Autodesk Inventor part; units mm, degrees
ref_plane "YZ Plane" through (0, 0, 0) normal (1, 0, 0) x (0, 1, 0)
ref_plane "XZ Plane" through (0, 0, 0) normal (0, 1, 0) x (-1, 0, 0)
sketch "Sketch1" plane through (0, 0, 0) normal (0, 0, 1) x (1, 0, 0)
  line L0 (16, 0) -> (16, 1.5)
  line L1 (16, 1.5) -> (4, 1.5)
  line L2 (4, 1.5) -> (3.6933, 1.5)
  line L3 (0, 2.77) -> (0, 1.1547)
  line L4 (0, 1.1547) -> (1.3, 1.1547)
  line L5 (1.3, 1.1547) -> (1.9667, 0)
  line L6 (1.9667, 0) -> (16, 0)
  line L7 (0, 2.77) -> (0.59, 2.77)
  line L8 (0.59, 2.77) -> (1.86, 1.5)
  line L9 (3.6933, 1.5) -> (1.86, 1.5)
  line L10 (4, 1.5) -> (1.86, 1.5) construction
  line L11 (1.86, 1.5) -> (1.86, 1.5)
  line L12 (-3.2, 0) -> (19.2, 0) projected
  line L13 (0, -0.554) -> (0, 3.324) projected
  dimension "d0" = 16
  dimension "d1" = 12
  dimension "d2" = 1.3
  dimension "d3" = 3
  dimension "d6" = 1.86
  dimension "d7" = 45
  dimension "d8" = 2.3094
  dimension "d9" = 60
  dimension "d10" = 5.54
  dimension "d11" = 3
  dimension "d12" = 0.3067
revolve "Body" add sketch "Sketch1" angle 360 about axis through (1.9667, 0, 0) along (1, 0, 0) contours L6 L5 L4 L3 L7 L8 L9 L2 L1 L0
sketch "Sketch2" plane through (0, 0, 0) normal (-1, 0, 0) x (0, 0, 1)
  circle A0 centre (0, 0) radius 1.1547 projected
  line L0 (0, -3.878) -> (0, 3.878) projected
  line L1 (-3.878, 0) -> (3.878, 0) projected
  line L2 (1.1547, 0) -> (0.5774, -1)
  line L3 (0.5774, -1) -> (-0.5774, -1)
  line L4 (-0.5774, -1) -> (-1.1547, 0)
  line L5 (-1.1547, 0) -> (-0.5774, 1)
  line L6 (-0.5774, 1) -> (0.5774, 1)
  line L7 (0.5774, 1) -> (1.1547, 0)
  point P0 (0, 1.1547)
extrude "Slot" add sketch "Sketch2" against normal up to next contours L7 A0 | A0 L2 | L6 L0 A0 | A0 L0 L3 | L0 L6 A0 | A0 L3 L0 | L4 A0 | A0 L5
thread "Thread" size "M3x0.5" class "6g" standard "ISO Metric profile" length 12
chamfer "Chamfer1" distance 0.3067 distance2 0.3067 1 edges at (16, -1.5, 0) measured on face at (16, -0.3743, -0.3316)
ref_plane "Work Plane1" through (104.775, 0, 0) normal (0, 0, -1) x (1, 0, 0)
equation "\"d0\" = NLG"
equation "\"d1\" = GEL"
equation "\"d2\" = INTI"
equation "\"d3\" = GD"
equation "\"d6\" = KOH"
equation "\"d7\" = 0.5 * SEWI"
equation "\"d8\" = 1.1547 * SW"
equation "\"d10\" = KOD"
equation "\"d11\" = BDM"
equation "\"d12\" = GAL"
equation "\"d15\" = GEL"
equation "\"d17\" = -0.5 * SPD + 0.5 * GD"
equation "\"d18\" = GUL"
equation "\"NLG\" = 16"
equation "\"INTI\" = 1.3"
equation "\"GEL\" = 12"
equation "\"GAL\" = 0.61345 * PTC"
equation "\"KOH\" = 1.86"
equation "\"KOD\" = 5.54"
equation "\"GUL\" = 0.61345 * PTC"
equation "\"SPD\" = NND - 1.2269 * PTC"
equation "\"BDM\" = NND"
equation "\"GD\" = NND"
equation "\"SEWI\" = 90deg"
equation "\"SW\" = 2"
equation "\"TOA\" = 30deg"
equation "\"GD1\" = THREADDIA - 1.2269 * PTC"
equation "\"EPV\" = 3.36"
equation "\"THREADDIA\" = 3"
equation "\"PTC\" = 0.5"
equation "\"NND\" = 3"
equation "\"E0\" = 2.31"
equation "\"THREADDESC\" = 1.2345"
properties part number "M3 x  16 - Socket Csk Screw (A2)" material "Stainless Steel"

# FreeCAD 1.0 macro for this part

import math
import FreeCAD as App
import Part
import Sketcher
from FreeCAD import Vector
Q = App.Units.Quantity


def edges_at(feature, points):
    """Names of the edges that pass closest to the given points."""
    edges = feature.Shape.Edges
    near = lambda p: min(range(len(edges)), key=lambda i: edges[i].distToShape(Part.Vertex(*p))[0])
    return sorted({f"Edge{near(p) + 1}" for p in points})


def add_polygon(sketch, points):
    """Adds a closed chain of lines whose ends are joined by coincident constraints."""
    first, n = sketch.GeometryCount, len(points)
    for a, b in zip(points, points[1:] + points[:1]):
        sketch.addGeometry(Part.LineSegment(App.Vector(*a, 0), App.Vector(*b, 0)), False)
    for i in range(n):
        sketch.addConstraint(Sketcher.Constraint("Coincident", first + i, 2, first + (i + 1) % n, 1))

doc = App.newDocument("Part")
body = doc.addObject("PartDesign::Body", "Body")

sketch1 = doc.addObject("Sketcher::SketchObject", "Sketch")
body.addObject(sketch1)
sketch1.AttachmentSupport = (doc.XY_Plane, [""])
sketch1.MapMode = "FlatFace"
add_polygon(sketch1, [(2, 0), (16, 0), (16, 1.5), (1.9, 1.5), (0.6, 2.8), (0, 2.8), (0, 1.2), (1.3, 1.2)])
sketch1.addConstraint([
    Sketcher.Constraint("Horizontal", 0),
    Sketcher.Constraint("Vertical", 1),
    Sketcher.Constraint("Horizontal", 2),
    Sketcher.Constraint("Horizontal", 4),
    Sketcher.Constraint("Vertical", 5),
    Sketcher.Constraint("Horizontal", 6),
    Sketcher.Constraint("PointOnObject", 0, 2, -1),
    Sketcher.Constraint("PointOnObject", 4, 2, -2),
    Sketcher.Constraint("DistanceX", 6, 1, 6, 2, 1.3),
    Sketcher.Constraint("DistanceX", -1, 1, 0, 2, 16.0),
    Sketcher.Constraint("DistanceX", -1, 1, 2, 2, 1.86),
    Sketcher.Constraint("Angle", 3, Q("135 deg")),
    Sketcher.Constraint("DistanceY", 1, 1, 1, 2, 1.5),
    Sketcher.Constraint("DistanceX", 4, 2, 4, 1, 0.59),
    Sketcher.Constraint("DistanceX", 0, 1, 0, 2, 14.0333),
    Sketcher.Constraint("DistanceY", 5, 2, 5, 1, 1.6153),
])
revolution = doc.addObject("PartDesign::Revolution", "Revolution")
body.addObject(revolution)
revolution.Profile = sketch1
revolution.ReferenceAxis = (sketch1, ["H_Axis"])
revolution.Angle = 360

sketch2 = doc.addObject("Sketcher::SketchObject", "Sketch001")
body.addObject(sketch2)
sketch2.AttachmentSupport = (doc.YZ_Plane, [""])
sketch2.MapMode = "FlatFace"
sketch2.addGeometry([
    Part.LineSegment(Vector(1, 0.6, 0), Vector(0, 1.2, 0)),
    Part.ArcOfCircle(Part.Circle(Vector(0, 0, 0), Vector(0, 0, 1), 1.2), math.radians(30), math.radians(90)),
    Part.ArcOfCircle(Part.Circle(Vector(0, 0, 0), Vector(0, 0, 1), 1.2), math.radians(90), math.radians(150)),
    Part.LineSegment(Vector(0, 1.2, 0), Vector(-1, 0.6, 0)),
    Part.ArcOfCircle(Part.Circle(Vector(0, 0, 0), Vector(0, 0, 1), 1.2), math.radians(-30), math.radians(30)),
    Part.LineSegment(Vector(1, 0.6, 0), Vector(1, -0.6, 0)),
    Part.LineSegment(Vector(-1, 0.6, 0), Vector(-1, -0.6, 0)),
    Part.ArcOfCircle(Part.Circle(Vector(0, 0, 0), Vector(0, 0, 1), 1.2), math.radians(150), math.radians(210)),
    Part.LineSegment(Vector(-1, -0.6, 0), Vector(0, -1.2, 0)),
    Part.ArcOfCircle(Part.Circle(Vector(0, 0, 0), Vector(0, 0, 1), 1.2), math.radians(-150), math.radians(-90)),
    Part.ArcOfCircle(Part.Circle(Vector(0, 0, 0), Vector(0, 0, 1), 1.2), math.radians(-90), math.radians(-30)),
    Part.LineSegment(Vector(0, -1.2, 0), Vector(1, -0.6, 0)),
], False)
sketch2.addConstraint([
    Sketcher.Constraint("Coincident", 0, 1, 1, 1),
    Sketcher.Constraint("Coincident", 1, 2, 0, 2),
    Sketcher.Constraint("Coincident", 2, 1, 3, 1),
    Sketcher.Constraint("Coincident", 3, 2, 2, 2),
    Sketcher.Constraint("Coincident", 4, 1, 5, 2),
    Sketcher.Constraint("Coincident", 5, 1, 4, 2),
    Sketcher.Constraint("Coincident", 6, 1, 7, 1),
    Sketcher.Constraint("Coincident", 7, 2, 6, 2),
    Sketcher.Constraint("Coincident", 8, 1, 9, 1),
    Sketcher.Constraint("Coincident", 9, 2, 8, 2),
    Sketcher.Constraint("Coincident", 10, 1, 11, 1),
    Sketcher.Constraint("Coincident", 11, 2, 10, 2),
    Sketcher.Constraint("Vertical", 5),
    Sketcher.Constraint("Vertical", 6),
    Sketcher.Constraint("Coincident", 1, 3, -1, 1),
    Sketcher.Constraint("Coincident", 2, 3, -1, 1),
    Sketcher.Constraint("Coincident", 4, 3, -1, 1),
    Sketcher.Constraint("Coincident", 7, 3, -1, 1),
    Sketcher.Constraint("Coincident", 9, 3, -1, 1),
    Sketcher.Constraint("Coincident", 10, 3, -1, 1),
    Sketcher.Constraint("Coincident", 2, 1, 1, 2),
    Sketcher.Constraint("Coincident", 5, 1, 0, 1),
    Sketcher.Constraint("Coincident", 6, 1, 3, 2),
    Sketcher.Constraint("Coincident", 8, 1, 7, 2),
    Sketcher.Constraint("Coincident", 10, 1, 9, 2),
    Sketcher.Constraint("PointOnObject", 1, 2, -2),
    Sketcher.Constraint("PointOnObject", 9, 2, -2),
    Sketcher.Constraint("Parallel", 0, 8),
    Sketcher.Constraint("Parallel", 3, 11),
    Sketcher.Constraint("DistanceX", -1, 1, 0, 1, 1.0),
    Sketcher.Constraint("Radius", 1, 1.1547),
])
pad1 = doc.addObject("PartDesign::Pad", "Pad")
body.addObject(pad1)
pad1.Profile = sketch2
pad1.Type = "UpToFirst"
doc.recompute()

chamfer = doc.addObject("PartDesign::Chamfer", "Chamfer")
body.addObject(chamfer)
chamfer.Base = (pad1, edges_at(pad1, [(16, -1.5, 0)]))
chamfer.ChamferType = "Two distances"
chamfer.Size = 0.3067
chamfer.Size2 = 0.3067

doc.recompute()
